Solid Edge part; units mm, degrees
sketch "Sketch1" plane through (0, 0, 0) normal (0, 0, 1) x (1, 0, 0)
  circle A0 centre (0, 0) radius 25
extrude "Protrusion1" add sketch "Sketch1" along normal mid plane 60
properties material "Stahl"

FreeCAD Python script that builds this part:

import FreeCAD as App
import Part
import Sketcher
Q = App.Units.Quantity

doc = App.newDocument("Part")
body = doc.addObject("PartDesign::Body", "Body")

sketch1 = body.newObject("Sketcher::SketchObject", "Sketch")
sketch1.AttachmentSupport = (doc.getObject("XY_Plane"), [""])
sketch1.MapMode = "FlatFace"
sketch1.addGeometry(Part.Circle(App.Vector(0, 0, 0), App.Vector(0, 0, 1), 25), False)
sketch1.addConstraint([
    Sketcher.Constraint("Coincident", 0, 3, -1, 1),
    Sketcher.Constraint("Diameter", 0, Q("50 mm")),
])
pad1 = body.newObject("PartDesign::Pad", "Pad")
pad1.Profile = sketch1
pad1.Length = 60
pad1.Midplane = True

doc.recompute()
